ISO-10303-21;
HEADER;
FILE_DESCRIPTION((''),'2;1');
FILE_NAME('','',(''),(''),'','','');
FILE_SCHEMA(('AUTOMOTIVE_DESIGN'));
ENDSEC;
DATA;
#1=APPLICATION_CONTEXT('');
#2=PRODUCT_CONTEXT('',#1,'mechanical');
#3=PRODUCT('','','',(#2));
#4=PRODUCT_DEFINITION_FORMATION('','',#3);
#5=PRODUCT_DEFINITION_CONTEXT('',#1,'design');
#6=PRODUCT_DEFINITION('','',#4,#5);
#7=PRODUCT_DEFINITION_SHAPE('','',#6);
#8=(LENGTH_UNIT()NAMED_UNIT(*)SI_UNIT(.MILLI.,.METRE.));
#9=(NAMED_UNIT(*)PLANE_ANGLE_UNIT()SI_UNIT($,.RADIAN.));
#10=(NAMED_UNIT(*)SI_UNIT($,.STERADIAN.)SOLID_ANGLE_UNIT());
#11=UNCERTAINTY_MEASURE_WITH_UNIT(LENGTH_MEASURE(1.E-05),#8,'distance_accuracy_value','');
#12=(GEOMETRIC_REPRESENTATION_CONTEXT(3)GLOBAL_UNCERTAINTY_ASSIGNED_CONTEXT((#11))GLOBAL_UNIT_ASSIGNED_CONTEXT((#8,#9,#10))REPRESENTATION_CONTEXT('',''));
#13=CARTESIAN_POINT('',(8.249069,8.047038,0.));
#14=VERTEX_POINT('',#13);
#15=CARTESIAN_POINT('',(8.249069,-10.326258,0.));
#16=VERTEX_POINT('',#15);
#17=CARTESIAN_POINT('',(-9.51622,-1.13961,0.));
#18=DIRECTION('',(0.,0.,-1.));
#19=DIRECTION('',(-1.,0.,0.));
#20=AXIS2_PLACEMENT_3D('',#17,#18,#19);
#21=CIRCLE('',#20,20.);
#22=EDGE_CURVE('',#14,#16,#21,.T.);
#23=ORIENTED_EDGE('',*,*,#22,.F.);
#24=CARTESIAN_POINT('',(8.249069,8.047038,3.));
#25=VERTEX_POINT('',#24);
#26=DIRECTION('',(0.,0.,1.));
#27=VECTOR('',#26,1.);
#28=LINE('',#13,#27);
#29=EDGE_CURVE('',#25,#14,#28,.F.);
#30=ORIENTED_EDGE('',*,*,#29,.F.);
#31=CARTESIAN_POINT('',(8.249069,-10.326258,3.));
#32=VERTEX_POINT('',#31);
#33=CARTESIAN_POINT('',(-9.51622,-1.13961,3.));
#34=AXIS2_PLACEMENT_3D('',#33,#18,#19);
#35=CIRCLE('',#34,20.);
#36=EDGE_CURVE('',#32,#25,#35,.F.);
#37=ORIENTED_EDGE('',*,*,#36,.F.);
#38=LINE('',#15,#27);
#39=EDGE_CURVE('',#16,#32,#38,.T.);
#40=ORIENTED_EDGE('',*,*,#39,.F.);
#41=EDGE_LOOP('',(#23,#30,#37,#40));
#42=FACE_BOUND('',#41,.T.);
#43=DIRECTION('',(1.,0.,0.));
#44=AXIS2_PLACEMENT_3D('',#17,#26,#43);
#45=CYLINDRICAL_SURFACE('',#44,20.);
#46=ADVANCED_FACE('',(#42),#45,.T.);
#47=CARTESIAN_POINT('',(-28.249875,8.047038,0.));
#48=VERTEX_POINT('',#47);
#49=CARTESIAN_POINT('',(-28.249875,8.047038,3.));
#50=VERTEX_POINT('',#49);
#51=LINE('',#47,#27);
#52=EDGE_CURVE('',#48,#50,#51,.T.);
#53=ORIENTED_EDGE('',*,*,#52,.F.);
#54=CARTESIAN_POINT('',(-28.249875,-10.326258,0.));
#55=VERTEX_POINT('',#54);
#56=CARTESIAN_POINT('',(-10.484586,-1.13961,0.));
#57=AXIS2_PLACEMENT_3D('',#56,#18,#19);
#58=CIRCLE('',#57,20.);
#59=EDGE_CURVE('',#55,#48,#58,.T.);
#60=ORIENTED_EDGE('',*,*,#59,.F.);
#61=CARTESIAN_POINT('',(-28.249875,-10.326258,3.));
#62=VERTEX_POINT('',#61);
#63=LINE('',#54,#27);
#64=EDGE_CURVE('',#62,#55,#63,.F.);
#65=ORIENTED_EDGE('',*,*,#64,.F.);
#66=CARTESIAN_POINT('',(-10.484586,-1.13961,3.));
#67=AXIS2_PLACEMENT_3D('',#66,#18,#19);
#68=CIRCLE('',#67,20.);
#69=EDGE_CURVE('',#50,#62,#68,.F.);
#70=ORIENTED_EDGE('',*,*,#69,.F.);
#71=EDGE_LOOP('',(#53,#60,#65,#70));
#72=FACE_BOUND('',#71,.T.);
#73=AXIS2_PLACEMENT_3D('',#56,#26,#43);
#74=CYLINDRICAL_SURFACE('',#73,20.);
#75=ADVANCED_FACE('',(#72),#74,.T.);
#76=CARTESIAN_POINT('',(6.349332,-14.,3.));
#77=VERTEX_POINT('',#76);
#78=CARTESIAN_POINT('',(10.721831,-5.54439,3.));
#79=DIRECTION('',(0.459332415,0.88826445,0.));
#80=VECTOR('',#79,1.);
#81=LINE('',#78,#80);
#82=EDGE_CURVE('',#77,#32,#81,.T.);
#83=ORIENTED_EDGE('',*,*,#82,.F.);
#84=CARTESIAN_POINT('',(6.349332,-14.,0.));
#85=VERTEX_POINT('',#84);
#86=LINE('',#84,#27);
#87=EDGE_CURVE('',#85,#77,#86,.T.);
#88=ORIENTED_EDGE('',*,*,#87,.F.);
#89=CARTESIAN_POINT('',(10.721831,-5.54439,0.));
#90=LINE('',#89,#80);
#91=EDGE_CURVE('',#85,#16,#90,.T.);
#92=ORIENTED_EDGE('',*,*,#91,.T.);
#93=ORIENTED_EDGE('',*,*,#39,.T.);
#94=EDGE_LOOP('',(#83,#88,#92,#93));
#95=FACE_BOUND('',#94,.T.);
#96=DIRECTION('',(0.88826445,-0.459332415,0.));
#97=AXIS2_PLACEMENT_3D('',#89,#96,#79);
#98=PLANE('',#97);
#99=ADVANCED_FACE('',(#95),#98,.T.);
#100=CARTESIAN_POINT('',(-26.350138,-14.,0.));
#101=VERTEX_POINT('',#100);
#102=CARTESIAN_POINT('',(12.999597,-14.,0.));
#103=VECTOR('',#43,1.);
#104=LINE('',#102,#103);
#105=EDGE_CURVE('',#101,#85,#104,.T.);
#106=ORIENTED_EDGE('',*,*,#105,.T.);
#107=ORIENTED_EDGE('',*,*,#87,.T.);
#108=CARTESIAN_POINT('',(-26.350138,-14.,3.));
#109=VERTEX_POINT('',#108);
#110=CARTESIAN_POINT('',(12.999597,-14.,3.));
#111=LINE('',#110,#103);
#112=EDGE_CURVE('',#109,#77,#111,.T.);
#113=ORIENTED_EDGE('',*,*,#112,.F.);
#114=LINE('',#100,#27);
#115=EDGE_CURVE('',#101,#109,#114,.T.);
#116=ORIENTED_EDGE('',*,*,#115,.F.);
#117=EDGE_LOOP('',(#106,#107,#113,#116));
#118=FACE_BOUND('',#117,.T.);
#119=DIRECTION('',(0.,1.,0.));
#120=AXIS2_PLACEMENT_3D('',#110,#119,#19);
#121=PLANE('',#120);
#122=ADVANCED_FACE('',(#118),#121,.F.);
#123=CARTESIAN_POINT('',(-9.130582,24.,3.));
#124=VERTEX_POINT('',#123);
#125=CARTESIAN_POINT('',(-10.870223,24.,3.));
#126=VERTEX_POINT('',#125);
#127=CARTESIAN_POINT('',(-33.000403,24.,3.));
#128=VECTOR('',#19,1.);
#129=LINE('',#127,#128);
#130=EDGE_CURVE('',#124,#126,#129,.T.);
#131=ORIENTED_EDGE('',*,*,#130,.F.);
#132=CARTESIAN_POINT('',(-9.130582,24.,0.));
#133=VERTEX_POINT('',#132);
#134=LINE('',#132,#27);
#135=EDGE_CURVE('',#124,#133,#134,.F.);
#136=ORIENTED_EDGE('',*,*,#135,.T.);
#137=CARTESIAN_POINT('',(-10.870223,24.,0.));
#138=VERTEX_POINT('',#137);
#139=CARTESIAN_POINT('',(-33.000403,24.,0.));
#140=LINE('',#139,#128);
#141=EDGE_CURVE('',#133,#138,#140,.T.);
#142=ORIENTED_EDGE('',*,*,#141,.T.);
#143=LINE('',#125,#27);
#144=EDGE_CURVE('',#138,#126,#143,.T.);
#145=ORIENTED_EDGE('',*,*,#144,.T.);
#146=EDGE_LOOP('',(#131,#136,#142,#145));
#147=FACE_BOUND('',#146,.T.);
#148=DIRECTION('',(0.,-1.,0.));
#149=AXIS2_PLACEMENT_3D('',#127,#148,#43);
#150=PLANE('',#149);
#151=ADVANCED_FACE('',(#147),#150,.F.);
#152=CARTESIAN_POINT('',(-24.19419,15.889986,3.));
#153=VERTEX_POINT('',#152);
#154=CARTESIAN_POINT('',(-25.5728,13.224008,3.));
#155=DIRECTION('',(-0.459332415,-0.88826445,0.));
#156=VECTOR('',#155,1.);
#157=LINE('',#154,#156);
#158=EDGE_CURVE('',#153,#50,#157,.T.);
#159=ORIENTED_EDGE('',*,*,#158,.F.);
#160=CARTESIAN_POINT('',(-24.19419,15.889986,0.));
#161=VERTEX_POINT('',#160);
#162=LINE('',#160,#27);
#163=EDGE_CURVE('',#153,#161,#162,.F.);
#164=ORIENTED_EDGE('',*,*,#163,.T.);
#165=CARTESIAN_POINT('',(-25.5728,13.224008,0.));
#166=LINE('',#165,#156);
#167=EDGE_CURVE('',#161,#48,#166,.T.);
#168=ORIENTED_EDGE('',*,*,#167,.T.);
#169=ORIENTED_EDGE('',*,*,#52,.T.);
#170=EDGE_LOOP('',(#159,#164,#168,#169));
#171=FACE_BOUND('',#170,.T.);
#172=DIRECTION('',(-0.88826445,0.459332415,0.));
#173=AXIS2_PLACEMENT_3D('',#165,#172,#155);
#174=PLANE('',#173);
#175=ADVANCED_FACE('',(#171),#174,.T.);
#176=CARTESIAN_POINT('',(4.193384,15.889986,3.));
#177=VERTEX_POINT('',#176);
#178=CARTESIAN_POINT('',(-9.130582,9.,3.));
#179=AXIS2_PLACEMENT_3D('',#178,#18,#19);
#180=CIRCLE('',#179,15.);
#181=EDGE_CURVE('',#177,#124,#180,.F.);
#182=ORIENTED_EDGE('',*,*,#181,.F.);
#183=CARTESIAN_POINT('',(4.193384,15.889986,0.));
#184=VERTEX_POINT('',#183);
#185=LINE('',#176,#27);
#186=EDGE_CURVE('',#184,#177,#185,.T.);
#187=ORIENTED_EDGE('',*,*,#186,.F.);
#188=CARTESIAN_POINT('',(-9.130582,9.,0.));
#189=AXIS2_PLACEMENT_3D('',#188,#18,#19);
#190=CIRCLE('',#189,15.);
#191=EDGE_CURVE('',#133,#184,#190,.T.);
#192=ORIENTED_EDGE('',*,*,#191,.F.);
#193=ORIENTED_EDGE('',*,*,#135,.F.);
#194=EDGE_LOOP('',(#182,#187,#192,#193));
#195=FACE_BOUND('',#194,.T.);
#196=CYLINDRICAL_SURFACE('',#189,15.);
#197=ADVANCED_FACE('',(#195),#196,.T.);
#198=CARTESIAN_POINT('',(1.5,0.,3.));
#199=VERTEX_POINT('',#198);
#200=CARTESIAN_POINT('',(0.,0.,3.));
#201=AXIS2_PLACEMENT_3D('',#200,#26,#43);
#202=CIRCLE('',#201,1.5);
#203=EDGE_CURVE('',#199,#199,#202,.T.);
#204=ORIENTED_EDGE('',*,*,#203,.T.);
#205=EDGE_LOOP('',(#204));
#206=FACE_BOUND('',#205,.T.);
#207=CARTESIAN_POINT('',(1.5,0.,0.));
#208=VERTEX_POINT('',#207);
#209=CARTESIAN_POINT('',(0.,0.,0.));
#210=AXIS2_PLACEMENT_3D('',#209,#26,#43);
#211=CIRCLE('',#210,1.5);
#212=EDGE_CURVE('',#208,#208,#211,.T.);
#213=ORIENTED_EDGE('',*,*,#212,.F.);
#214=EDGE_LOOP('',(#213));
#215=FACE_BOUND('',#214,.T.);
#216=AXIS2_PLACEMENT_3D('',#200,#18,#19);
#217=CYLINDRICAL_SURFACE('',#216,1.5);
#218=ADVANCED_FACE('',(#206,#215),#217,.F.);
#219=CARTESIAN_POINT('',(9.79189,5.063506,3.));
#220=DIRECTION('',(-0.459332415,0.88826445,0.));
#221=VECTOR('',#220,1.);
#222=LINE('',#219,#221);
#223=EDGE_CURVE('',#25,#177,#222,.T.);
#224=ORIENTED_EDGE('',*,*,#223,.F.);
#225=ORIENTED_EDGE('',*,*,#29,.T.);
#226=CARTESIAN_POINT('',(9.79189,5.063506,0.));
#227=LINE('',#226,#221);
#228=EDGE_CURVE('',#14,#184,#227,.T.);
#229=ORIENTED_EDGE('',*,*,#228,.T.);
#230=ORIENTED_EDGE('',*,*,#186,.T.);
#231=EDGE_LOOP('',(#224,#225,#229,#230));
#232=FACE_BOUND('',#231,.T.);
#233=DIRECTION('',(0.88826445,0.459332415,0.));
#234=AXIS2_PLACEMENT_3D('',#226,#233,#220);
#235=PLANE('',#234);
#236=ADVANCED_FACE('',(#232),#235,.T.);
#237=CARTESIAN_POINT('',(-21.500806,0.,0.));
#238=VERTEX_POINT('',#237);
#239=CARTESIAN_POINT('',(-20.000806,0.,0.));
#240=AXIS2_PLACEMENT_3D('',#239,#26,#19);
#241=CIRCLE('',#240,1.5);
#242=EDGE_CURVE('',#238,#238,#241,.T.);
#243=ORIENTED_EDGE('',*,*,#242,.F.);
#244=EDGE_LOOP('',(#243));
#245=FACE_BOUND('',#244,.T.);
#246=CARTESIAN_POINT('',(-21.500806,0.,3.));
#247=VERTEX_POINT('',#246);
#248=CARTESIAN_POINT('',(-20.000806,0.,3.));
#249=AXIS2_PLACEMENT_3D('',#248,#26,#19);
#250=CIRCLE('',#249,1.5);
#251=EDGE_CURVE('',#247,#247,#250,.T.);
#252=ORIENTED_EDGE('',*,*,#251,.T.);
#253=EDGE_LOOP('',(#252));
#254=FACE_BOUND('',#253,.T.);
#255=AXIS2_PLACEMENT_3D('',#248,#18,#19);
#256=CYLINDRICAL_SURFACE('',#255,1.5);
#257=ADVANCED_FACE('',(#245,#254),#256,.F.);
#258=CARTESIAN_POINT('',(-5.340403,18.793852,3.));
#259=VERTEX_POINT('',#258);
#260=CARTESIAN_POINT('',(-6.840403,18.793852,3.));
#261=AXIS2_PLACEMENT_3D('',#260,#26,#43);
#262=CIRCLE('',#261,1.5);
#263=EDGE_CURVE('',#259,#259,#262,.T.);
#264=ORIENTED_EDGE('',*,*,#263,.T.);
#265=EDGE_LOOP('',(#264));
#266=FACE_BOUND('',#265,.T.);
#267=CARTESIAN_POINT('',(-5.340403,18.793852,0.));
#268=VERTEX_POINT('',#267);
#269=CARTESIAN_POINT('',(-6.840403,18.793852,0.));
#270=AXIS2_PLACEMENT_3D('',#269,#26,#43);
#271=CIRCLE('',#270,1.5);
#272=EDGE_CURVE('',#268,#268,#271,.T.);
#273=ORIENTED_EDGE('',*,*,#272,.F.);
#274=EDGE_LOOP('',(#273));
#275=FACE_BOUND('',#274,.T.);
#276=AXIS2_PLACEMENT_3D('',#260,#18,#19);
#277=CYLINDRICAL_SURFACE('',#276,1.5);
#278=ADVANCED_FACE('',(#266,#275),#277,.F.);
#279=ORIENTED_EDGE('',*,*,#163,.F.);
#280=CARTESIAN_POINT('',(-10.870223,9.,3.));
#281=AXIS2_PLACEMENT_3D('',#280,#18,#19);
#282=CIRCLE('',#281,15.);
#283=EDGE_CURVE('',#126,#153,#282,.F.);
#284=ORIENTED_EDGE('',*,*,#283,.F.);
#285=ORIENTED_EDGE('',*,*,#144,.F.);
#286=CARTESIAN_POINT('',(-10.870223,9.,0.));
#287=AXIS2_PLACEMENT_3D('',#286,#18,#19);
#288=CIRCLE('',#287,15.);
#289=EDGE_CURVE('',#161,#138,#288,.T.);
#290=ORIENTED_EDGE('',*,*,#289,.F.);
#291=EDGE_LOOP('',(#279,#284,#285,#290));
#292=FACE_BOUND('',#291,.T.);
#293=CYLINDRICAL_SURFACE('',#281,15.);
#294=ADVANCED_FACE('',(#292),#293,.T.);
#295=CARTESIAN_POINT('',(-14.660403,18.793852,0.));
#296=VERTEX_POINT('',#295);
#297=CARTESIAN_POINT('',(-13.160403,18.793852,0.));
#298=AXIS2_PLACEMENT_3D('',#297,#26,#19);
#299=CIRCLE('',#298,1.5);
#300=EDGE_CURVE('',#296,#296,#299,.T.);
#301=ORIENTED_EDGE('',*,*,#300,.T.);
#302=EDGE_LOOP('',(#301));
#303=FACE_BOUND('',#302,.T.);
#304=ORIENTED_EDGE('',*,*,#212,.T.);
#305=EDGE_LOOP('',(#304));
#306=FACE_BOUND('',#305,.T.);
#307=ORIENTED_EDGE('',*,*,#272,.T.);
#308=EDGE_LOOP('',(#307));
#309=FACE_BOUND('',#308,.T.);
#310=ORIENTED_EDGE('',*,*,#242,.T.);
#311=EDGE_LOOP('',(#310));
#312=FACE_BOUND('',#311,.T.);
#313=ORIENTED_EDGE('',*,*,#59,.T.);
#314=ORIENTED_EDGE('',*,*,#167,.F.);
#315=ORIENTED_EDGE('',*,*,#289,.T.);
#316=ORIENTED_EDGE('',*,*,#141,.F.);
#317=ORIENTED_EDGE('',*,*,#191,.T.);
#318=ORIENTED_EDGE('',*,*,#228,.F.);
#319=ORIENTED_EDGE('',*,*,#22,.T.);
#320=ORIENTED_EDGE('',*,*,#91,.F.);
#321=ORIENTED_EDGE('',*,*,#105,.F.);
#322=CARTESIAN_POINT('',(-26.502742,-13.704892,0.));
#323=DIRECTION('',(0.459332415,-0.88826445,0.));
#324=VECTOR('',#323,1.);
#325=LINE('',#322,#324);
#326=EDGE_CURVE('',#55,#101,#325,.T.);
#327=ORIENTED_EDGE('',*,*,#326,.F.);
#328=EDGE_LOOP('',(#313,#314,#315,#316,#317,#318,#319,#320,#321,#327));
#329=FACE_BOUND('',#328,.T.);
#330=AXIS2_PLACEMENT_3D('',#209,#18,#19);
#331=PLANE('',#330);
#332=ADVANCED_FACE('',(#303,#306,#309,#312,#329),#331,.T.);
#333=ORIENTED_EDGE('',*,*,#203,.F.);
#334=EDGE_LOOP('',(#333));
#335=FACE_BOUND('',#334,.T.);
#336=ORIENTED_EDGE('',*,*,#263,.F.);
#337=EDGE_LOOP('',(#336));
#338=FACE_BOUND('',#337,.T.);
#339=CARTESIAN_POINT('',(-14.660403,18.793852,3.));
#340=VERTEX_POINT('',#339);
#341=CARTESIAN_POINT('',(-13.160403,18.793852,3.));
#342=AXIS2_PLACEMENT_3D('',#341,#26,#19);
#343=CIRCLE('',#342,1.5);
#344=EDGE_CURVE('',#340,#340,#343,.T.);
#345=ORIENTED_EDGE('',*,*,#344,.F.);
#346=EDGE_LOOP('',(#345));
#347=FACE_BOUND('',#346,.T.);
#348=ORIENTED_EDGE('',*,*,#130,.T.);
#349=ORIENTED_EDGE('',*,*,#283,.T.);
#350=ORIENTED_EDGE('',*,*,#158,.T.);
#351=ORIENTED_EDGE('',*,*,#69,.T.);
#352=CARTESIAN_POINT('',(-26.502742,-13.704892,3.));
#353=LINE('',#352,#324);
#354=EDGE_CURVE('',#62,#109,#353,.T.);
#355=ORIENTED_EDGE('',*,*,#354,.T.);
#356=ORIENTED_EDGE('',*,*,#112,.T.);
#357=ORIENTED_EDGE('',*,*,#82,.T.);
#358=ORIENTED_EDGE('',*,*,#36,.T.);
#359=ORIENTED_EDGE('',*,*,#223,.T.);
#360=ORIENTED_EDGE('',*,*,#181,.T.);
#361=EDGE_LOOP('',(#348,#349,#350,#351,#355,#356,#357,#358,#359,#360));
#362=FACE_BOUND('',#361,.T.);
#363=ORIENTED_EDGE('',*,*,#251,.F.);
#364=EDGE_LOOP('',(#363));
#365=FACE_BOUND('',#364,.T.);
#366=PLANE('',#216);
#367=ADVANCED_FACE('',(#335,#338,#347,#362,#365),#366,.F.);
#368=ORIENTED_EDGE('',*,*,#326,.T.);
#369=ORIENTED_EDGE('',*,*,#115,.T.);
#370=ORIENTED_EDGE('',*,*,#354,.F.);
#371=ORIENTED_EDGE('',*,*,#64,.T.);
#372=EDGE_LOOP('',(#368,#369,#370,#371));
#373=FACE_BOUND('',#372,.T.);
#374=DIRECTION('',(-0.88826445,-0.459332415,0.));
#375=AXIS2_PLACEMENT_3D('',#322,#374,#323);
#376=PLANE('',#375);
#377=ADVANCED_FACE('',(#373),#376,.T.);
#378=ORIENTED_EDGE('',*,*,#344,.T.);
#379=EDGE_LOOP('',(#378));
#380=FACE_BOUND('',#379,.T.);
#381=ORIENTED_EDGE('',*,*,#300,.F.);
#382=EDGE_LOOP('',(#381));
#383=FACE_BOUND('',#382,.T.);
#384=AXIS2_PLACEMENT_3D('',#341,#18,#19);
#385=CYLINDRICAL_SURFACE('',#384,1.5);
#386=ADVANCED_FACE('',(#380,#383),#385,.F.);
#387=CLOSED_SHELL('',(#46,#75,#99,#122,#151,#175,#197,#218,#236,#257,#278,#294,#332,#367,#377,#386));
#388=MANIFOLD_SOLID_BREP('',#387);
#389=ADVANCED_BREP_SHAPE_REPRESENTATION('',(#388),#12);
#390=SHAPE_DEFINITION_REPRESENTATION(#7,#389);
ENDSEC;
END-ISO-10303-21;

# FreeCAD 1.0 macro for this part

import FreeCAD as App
import Part
import Sketcher
from FreeCAD import Vector
Q = App.Units.Quantity


def edges_at(feature, points):
    """Names of the edges that pass closest to the given points."""
    edges = feature.Shape.Edges
    near = lambda p: min(range(len(edges)), key=lambda i: edges[i].distToShape(Part.Vertex(*p))[0])
    return sorted({f"Edge{near(p) + 1}" for p in points})


def add_polygon(sketch, points):
    """Adds a closed chain of lines whose ends are joined by coincident constraints."""
    first, n = sketch.GeometryCount, len(points)
    for a, b in zip(points, points[1:] + points[:1]):
        sketch.addGeometry(Part.LineSegment(App.Vector(*a, 0), App.Vector(*b, 0)), False)
    for i in range(n):
        sketch.addConstraint(Sketcher.Constraint("Coincident", first + i, 2, first + (i + 1) % n, 1))

doc = App.newDocument("Part")
body = doc.addObject("PartDesign::Body", "Body")

# Sketch on XY plane
sketch1 = body.newObject("Sketcher::SketchObject", "Sketch")
sketch1.AttachmentSupport = (doc.getObject("XY_Plane"), [""])
sketch1.MapMode = "FlatFace"
add_polygon(sketch1, [(-33.000403, 24), (-33.000403, -14), (12.999597, -14), (12.999597, 24)])  # lines 0-3
sketch1.addGeometry(Part.Circle(Vector(-20.000806, 0, 0), Vector(0, 0, 1), 1.5), False)  # 4
sketch1.addGeometry(Part.Circle(Vector(0, 0, 0), Vector(0, 0, 1), 1.5), False)  # 5
sketch1.addGeometry(Part.Circle(Vector(-13.160403, 18.793852, 0), Vector(0, 0, 1), 1.5), False)  # 6
sketch1.addGeometry(Part.Circle(Vector(-6.840403, 18.793852, 0), Vector(0, 0, 1), 1.5), False)  # 7
sketch1.addConstraint([
    Sketcher.Constraint("Vertical", 0),
    Sketcher.Constraint("Horizontal", 1),
    Sketcher.Constraint("Vertical", 2),
    Sketcher.Constraint("Horizontal", 3),
    Sketcher.Constraint("Coincident", 5, 3, -1, 1),
    Sketcher.Constraint("Equal", 4, 5),
    Sketcher.Constraint("Equal", 5, 6),
    Sketcher.Constraint("Equal", 6, 7),
    Sketcher.Constraint("PointOnObject", 4, 3, -1),
    Sketcher.Constraint("Horizontal", 6, 3, 7, 3),
    Sketcher.Constraint("Diameter", 4, Q("3 mm")),
    Sketcher.Constraint("DistanceX", 1, 1, 1, 2, Q("46 mm")),
    Sketcher.Constraint("DistanceY", 0, 2, 0, 1, Q("38 mm")),
    Sketcher.Constraint("DistanceY", 0, 2, -1, 1, Q("14 mm")),
    Sketcher.Constraint("DistanceX", 6, 3, 7, 3, Q("6.32 mm")),
    Sketcher.Constraint("DistanceX", 0, 2, 6, 3, Q("19.84 mm")),
    Sketcher.Constraint("DistanceX", 4, 3, -1, 1, Q("20.000806 mm")),
    Sketcher.Constraint("DistanceX", 6, 3, -1, 1, Q("13.160403 mm")),
    Sketcher.Constraint("DistanceY", -1, 1, 6, 3, Q("18.793852 mm")),
])
pad1 = body.newObject("PartDesign::Pad", "Pad")
pad1.Profile = sketch1
pad1.Length = 3

# Sketch on XY plane
sketch2 = body.newObject("Sketcher::SketchObject", "Sketch001")
sketch2.AttachmentSupport = (doc.getObject("XY_Plane"), [""])
sketch2.MapMode = "FlatFace"
sketch2.AttachmentOffset = App.Placement(Vector(0, 0, 3), App.Rotation())
add_polygon(sketch2, [(-33.000403, -1.13961), (-20.000403, 24), (-33.000403, 24)])  # lines 0-2
add_polygon(sketch2, [(12.999597, 24), (-0.000403, 24), (12.999597, -1.13961)])  # lines 3-5
add_polygon(sketch2, [(-26.350138, -14), (-33.000403, -1.13961), (-33.000403, -14)])  # lines 6-8
add_polygon(sketch2, [(12.999597, -14), (12.999597, -1.13961), (6.349332, -14)])  # lines 9-11
sketch2.addConstraint([
    Sketcher.Constraint("Horizontal", 1),
    Sketcher.Constraint("Vertical", 2),
    Sketcher.Constraint("Horizontal", 3),
    Sketcher.Constraint("Vertical", 5),
    Sketcher.Constraint("Vertical", 7),
    Sketcher.Constraint("Horizontal", 8),
    Sketcher.Constraint("Vertical", 9),
    Sketcher.Constraint("Horizontal", 11),
    Sketcher.Constraint("Coincident", 6, 2, 2, 2),
    Sketcher.Constraint("Coincident", 9, 2, 4, 2),
    Sketcher.Constraint("Parallel", 4, 6),
    Sketcher.Constraint("Parallel", 0, 10),
    Sketcher.Constraint("Horizontal", 1, 2, 3, 2),
    Sketcher.Constraint("Horizontal", 2, 2, 4, 2),
    Sketcher.Constraint("Horizontal", 8, 2, 10, 2),
    Sketcher.Constraint("Equal", 1, 3),
    Sketcher.Constraint("DistanceX", 1, 2, 1, 1, Q("13 mm")),
    Sketcher.Constraint("DistanceY", -1, 1, 0, 2, Q("24 mm")),
    Sketcher.Constraint("DistanceY", 7, 2, -1, 1, Q("14 mm")),
    Sketcher.Constraint("DistanceX", 0, 2, 3, 2, Q("20 mm")),
    Sketcher.Constraint("DistanceY", 2, 2, 2, 1, Q("25.13961 mm")),
    Sketcher.Constraint("DistanceX", 0, 2, -1, 1, Q("20.000403 mm")),
])
pocket1 = body.newObject("PartDesign::Pocket", "Pocket")
pocket1.Profile = sketch2
pocket1.Length = 3
doc.recompute()

fillet = body.newObject("PartDesign::Fillet", "Fillet")
fillet.Base = (pocket1, edges_at(pocket1, [(0, 24, 1.5)]))
fillet.Radius = 15
doc.recompute()

fillet2 = body.newObject("PartDesign::Fillet", "Fillet001")
fillet2.Base = (fillet, edges_at(fillet, [(-20, 24, 1.5)]))
fillet2.Radius = 15
doc.recompute()

fillet3 = body.newObject("PartDesign::Fillet", "Fillet002")
fillet3.Base = (fillet2, edges_at(fillet2, [(13, -1.14, 1.5)]))
fillet3.Radius = 20
doc.recompute()

fillet4 = body.newObject("PartDesign::Fillet", "Fillet003")
fillet4.Base = (fillet3, edges_at(fillet3, [(-33, -1.14, 1.5)]))
fillet4.Radius = 20

doc.recompute()
